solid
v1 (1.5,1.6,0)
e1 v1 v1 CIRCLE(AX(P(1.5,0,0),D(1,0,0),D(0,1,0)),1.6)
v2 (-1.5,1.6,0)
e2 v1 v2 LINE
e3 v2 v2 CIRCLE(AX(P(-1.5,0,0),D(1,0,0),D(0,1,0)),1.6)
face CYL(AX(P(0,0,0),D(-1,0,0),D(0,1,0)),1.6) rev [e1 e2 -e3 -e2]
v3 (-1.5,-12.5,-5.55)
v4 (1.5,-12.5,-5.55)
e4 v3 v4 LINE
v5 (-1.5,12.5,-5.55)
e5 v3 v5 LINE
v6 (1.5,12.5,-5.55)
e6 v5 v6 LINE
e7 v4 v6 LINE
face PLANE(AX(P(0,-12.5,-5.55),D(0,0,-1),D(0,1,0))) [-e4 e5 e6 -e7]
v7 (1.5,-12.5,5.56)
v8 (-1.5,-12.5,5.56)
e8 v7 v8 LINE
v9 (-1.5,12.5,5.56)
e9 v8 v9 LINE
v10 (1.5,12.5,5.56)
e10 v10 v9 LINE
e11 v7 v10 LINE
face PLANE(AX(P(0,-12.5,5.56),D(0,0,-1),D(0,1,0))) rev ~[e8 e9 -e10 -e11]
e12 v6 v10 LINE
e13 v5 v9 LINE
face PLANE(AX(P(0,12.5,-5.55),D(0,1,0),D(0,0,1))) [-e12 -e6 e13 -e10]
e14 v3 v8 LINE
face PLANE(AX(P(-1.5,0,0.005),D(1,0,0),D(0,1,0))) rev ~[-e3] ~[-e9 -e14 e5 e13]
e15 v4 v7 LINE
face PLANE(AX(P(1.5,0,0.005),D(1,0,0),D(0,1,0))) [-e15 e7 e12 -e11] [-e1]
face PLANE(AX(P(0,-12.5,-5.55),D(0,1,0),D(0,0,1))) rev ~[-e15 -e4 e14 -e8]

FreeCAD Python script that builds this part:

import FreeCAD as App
import Part
import Sketcher
from FreeCAD import Vector


def add_polygon(sketch, points):
    """Adds a closed chain of lines whose ends are joined by coincident constraints."""
    first, n = sketch.GeometryCount, len(points)
    for a, b in zip(points, points[1:] + points[:1]):
        sketch.addGeometry(Part.LineSegment(App.Vector(*a, 0), App.Vector(*b, 0)), False)
    for i in range(n):
        sketch.addConstraint(Sketcher.Constraint("Coincident", first + i, 2, first + (i + 1) % n, 1))

doc = App.newDocument("Part")
body = doc.addObject("PartDesign::Body", "Body")

# Sketch on YZ plane
sketch1 = body.newObject("Sketcher::SketchObject", "Sketch")
sketch1.AttachmentSupport = (doc.getObject("YZ_Plane"), [""])
sketch1.MapMode = "FlatFace"
add_polygon(sketch1, [(-12.5, 5.6), (-12.5, -5.5), (12.5, -5.5), (12.5, 5.6)])  # lines 0-3
sketch1.addGeometry(Part.Circle(Vector(0, 0, 0), Vector(0, 0, 1), 1.6), False)  # 4
sketch1.addConstraint([
    Sketcher.Constraint("Vertical", 0),
    Sketcher.Constraint("Horizontal", 1),
    Sketcher.Constraint("Vertical", 2),
    Sketcher.Constraint("Horizontal", 3),
    Sketcher.Constraint("Coincident", 4, 3, -1, 1),
    Sketcher.Constraint("Diameter", 4, 3.2),
    Sketcher.Constraint("DistanceX", 1, 1, 1, 2, 25.0),
    Sketcher.Constraint("DistanceY", 0, 2, 0, 1, 11.11),
    Sketcher.Constraint("DistanceX", 0, 2, -1, 1, 12.5),
    Sketcher.Constraint("DistanceY", 0, 2, -1, 1, 5.55),
])
pad1 = body.newObject("PartDesign::Pad", "Pad")
pad1.Profile = sketch1
pad1.Length = 3
pad1.Midplane = True

doc.recompute()
